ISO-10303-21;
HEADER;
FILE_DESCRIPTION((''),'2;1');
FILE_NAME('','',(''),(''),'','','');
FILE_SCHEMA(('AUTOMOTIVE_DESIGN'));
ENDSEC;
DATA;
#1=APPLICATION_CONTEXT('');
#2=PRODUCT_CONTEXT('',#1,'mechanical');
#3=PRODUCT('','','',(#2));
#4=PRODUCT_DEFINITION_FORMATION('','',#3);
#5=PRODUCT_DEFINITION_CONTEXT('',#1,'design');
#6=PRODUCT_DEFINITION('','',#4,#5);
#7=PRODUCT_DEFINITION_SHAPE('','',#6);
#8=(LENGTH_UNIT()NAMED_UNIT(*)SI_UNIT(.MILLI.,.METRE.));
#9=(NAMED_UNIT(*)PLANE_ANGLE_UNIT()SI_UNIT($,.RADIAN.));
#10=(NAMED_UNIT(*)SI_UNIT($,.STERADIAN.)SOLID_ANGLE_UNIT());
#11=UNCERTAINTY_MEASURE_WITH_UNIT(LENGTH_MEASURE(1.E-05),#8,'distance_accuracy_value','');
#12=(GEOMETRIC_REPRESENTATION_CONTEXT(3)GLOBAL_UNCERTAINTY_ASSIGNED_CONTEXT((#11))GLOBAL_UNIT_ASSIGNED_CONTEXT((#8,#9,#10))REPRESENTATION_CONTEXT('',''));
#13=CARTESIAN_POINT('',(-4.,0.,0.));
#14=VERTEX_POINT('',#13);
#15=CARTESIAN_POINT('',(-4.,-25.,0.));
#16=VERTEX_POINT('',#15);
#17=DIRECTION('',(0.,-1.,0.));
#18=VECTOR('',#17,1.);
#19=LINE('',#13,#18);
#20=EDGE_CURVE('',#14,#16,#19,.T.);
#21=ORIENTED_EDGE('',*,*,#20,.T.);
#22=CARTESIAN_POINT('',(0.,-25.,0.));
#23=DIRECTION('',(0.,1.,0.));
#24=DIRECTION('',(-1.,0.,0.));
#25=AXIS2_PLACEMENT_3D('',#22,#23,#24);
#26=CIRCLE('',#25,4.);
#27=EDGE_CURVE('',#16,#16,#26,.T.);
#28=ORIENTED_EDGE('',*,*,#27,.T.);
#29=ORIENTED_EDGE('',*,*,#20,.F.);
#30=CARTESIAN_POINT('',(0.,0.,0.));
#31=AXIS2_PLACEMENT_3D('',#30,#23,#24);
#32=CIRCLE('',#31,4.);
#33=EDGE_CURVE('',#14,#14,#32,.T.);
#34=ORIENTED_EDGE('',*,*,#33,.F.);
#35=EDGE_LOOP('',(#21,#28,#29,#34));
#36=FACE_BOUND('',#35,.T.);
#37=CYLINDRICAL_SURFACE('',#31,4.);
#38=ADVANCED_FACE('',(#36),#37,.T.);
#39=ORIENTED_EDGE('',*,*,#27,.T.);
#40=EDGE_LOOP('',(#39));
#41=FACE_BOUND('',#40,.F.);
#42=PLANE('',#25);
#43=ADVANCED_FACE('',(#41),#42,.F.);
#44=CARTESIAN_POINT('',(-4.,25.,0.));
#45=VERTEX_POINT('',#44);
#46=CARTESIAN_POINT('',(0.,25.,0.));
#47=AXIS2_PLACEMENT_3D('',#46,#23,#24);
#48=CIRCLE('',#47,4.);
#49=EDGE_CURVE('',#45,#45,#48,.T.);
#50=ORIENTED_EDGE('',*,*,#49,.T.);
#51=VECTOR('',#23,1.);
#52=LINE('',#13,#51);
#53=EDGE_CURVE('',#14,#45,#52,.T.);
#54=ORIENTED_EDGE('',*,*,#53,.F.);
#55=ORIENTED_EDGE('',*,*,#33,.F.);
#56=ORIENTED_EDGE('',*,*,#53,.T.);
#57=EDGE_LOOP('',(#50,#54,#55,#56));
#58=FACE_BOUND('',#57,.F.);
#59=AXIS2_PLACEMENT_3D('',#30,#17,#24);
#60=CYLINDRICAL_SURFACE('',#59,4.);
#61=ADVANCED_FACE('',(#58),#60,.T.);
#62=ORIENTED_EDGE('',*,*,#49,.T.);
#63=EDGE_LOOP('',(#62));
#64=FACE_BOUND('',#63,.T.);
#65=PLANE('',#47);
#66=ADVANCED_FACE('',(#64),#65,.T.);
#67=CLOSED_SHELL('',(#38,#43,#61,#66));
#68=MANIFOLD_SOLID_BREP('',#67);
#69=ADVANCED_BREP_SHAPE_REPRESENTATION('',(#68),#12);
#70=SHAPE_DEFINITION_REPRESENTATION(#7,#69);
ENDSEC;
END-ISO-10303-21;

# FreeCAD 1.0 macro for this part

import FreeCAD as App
import Part
import Sketcher
from FreeCAD import Vector

doc = App.newDocument("Part")
body = doc.addObject("PartDesign::Body", "Body")

sketch1 = body.newObject("Sketcher::SketchObject", "Sketch")
sketch1.AttachmentSupport = (doc.getObject("XZ_Plane"), [""])
sketch1.MapMode = "FlatFace"
sketch1.addGeometry(Part.Circle(Vector(0, 0, 0), Vector(0, 0, 1), 4), False)
sketch1.addConstraint([
    Sketcher.Constraint("Coincident", 0, 3, -1, 1),
    Sketcher.Constraint("Diameter", 0, 8.0),
])
pad1 = body.newObject("PartDesign::Pad", "Pad")
pad1.Profile = sketch1
pad1.Length = 50
pad1.Midplane = True

doc.recompute()
